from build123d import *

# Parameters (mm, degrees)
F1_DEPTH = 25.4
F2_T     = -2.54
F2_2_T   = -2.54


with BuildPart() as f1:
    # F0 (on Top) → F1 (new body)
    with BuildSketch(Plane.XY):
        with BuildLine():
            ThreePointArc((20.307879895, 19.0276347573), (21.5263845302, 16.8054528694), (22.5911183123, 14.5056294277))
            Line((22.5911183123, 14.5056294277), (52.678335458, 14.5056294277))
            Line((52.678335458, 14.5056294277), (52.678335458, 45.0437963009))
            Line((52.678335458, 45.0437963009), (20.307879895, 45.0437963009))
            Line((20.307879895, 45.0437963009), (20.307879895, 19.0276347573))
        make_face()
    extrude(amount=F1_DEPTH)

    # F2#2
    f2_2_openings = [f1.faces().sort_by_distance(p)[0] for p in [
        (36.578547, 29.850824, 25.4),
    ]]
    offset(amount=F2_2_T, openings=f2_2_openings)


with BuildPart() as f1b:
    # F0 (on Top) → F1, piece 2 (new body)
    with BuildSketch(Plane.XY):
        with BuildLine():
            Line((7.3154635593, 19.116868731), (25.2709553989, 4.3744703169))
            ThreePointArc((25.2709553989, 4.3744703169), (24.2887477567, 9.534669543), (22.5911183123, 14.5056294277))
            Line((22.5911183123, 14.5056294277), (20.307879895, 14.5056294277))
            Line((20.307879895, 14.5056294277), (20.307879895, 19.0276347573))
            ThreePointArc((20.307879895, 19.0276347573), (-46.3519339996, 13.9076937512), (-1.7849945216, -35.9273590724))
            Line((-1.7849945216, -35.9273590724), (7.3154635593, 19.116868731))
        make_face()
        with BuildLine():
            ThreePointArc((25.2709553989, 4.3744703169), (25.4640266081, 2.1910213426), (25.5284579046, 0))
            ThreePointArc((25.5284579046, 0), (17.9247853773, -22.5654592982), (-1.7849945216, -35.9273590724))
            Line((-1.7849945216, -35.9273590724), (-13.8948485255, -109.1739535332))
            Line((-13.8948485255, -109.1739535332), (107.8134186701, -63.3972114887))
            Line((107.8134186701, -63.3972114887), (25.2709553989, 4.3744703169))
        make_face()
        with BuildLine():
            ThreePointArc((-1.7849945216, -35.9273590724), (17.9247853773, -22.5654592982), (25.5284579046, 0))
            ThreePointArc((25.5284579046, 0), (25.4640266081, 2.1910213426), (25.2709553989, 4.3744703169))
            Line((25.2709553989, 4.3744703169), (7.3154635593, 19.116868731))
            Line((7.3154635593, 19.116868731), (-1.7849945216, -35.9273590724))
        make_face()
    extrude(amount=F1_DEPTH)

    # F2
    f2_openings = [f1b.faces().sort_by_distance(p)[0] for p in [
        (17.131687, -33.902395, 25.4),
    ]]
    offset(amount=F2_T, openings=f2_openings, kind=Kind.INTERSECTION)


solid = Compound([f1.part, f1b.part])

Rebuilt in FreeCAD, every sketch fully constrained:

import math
import FreeCAD as App
import Part
import Sketcher
Q = App.Units.Quantity


def faces_at(feature, points):
    """Names of the faces that lie closest to the given points."""
    faces = feature.Shape.Faces
    near = lambda p: min(range(len(faces)), key=lambda i: faces[i].distToShape(Part.Vertex(*p))[0])
    return sorted({f"Face{near(p) + 1}" for p in points})

doc = App.newDocument("Part")
params = doc.addObject("Spreadsheet::Sheet", "Params")
for row, (alias, value) in enumerate([
    ("pad1_length", "1 in"),
    ("thickness_wall", "0.1 in"),
    ("pad2_length", "1 in"),
    ("thickness2_wall", "0.1 in"),
], start=1):
    params.set(f"A{row}", alias)
    params.set(f"B{row}", "=" + value)
    params.setAlias(f"B{row}", alias)

body = doc.addObject("PartDesign::Body", "Body")

# Sketch on XY plane
sketch1 = body.newObject("Sketcher::SketchObject", "Sketch")
sketch1.AttachmentSupport = (doc.getObject("XY_Plane"), [""])
sketch1.MapMode = "FlatFace"
sketch1.addGeometry(Part.ArcOfCircle(Part.Circle(App.Vector(-12, 0, 0), App.Vector(0, 0, 1), 37), math.radians(22.89), math.radians(30.69)), False)
sketch1.addGeometry(Part.LineSegment(App.Vector(23, 15, 0), App.Vector(53, 15, 0)), False)
sketch1.addGeometry(Part.LineSegment(App.Vector(53, 15, 0), App.Vector(53, 45, 0)), False)
sketch1.addGeometry(Part.LineSegment(App.Vector(53, 45, 0), App.Vector(20, 45, 0)), False)
sketch1.addGeometry(Part.LineSegment(App.Vector(20, 45, 0), App.Vector(20, 19, 0)), False)
sketch1.addConstraint(Sketcher.Constraint("Coincident", 0, 1, 1, 1))
sketch1.addConstraint(Sketcher.Constraint("Coincident", 1, 2, 2, 1))
sketch1.addConstraint(Sketcher.Constraint("Coincident", 2, 2, 3, 1))
sketch1.addConstraint(Sketcher.Constraint("Coincident", 3, 2, 4, 1))
sketch1.addConstraint(Sketcher.Constraint("Coincident", 4, 2, 0, 2))
sketch1.addConstraint(Sketcher.Constraint("Horizontal", 1))
sketch1.addConstraint(Sketcher.Constraint("Vertical", 2))
sketch1.addConstraint(Sketcher.Constraint("Horizontal", 3))
sketch1.addConstraint(Sketcher.Constraint("Vertical", 4))
sketch1.addConstraint(Sketcher.Constraint("PointOnObject", 0, 3, -1))
sketch1.addConstraint(Sketcher.Constraint("Radius", 0, 37.285653))
sketch1.addConstraint(Sketcher.Constraint("DistanceY", 4, 2, 4, 1, 26.016162))
sketch1.addConstraint(Sketcher.Constraint("DistanceX", 1, 1, 1, 2, 30.087217))
sketch1.addConstraint(Sketcher.Constraint("DistanceX", 3, 2, 3, 1, 32.370456))
sketch1.addConstraint(Sketcher.Constraint("DistanceY", 2, 1, 2, 2, 30.538167))
sketch1.addConstraint(Sketcher.Constraint("DistanceX", -1, 1, 0, 1, 22.591118))
pad1 = body.newObject("PartDesign::Pad", "Pad")
pad1.Profile = sketch1
pad1.setExpression("Length", "Params.pad1_length")
doc.recompute()

thickness = body.newObject("PartDesign::Thickness", "Thickness")
thickness.Base = (pad1, faces_at(pad1, [(36.493, 29.775, 25.4)]))
thickness.setExpression("Value", "Params.thickness_wall")
thickness.Reversed = True
thickness.Join = "Arc"
body2 = doc.addObject("PartDesign::Body", "Body001")

# Sketch on XY plane
sketch2 = body2.newObject("Sketcher::SketchObject", "Sketch001")
sketch2.AttachmentSupport = (doc.getObject("XY_Plane001"), [""])
sketch2.MapMode = "FlatFace"
sketch2.addGeometry(Part.ArcOfCircle(Part.Circle(App.Vector(-11.8, 0, 0), App.Vector(0, 0, 1), 37.3), math.radians(6.74), math.radians(22.89)), False)
sketch2.addGeometry(Part.LineSegment(App.Vector(22.6, 14.5, 0), App.Vector(20.3, 14.5, 0)), False)
sketch2.addGeometry(Part.LineSegment(App.Vector(20.3, 14.5, 0), App.Vector(20.3, 19, 0)), False)
sketch2.addGeometry(Part.ArcOfCircle(Part.Circle(App.Vector(-11.8, 0, 0), App.Vector(0, 0, 1), 37.3), math.radians(31), math.radians(286)), False)
sketch2.addGeometry(Part.LineSegment(App.Vector(-1.8, -35.9, 0), App.Vector(-13.9, -109.2, 0)), False)
sketch2.addGeometry(Part.LineSegment(App.Vector(-13.9, -109.2, 0), App.Vector(107.8, -63.4, 0)), False)
sketch2.addGeometry(Part.LineSegment(App.Vector(107.8, -63.4, 0), App.Vector(25.3, 4.4, 0)), False)
sketch2.addConstraint(Sketcher.Constraint("Coincident", 0, 2, 1, 1))
sketch2.addConstraint(Sketcher.Constraint("Coincident", 1, 2, 2, 1))
sketch2.addConstraint(Sketcher.Constraint("Coincident", 2, 2, 3, 1))
sketch2.addConstraint(Sketcher.Constraint("Coincident", 3, 2, 4, 1))
sketch2.addConstraint(Sketcher.Constraint("Coincident", 4, 2, 5, 1))
sketch2.addConstraint(Sketcher.Constraint("Coincident", 5, 2, 6, 1))
sketch2.addConstraint(Sketcher.Constraint("Coincident", 6, 2, 0, 1))
sketch2.addConstraint(Sketcher.Constraint("Horizontal", 1))
sketch2.addConstraint(Sketcher.Constraint("Vertical", 2))
sketch2.addConstraint(Sketcher.Constraint("Coincident", 3, 3, 0, 3))
sketch2.addConstraint(Sketcher.Constraint("Equal", 0, 3))
sketch2.addConstraint(Sketcher.Constraint("PointOnObject", 0, 3, -1))
sketch2.addConstraint(Sketcher.Constraint("Radius", 0, 37.285653))
sketch2.addConstraint(Sketcher.Constraint("DistanceX", 1, 2, 5, 2, Q("3.4451 in")))
sketch2.addConstraint(Sketcher.Constraint("DistanceX", 1, 2, 1, 1, 2.283238))
sketch2.addConstraint(Sketcher.Constraint("DistanceX", 3, 3, 3, 2, 9.9722))
sketch2.addConstraint(Sketcher.Constraint("Distance", 5, 130.032351))
sketch2.addConstraint(Sketcher.Constraint("Distance", 6, 106.800089))
sketch2.addConstraint(Sketcher.Constraint("DistanceY", 2, 1, 2, 2, 4.522005))
sketch2.addConstraint(Sketcher.Constraint("DistanceX", -1, 1, 0, 2, 22.591118))
sketch2.addConstraint(Sketcher.Constraint("DistanceX", 4, 2, -1, 1, 13.894849))
sketch2.addConstraint(Sketcher.Constraint("DistanceY", 5, 2, -1, 1, 63.397211))
pad2 = body2.newObject("PartDesign::Pad", "Pad001")
pad2.Profile = sketch2
pad2.setExpression("Length", "Params.pad2_length")
doc.recompute()

thickness2 = body2.newObject("PartDesign::Thickness", "Thickness001")
thickness2.Base = (pad2, faces_at(pad2, [(29.385, -35.944, 25.4)]))
thickness2.setExpression("Value", "Params.thickness2_wall")
thickness2.Reversed = True
thickness2.Join = "Intersection"

doc.recompute()
